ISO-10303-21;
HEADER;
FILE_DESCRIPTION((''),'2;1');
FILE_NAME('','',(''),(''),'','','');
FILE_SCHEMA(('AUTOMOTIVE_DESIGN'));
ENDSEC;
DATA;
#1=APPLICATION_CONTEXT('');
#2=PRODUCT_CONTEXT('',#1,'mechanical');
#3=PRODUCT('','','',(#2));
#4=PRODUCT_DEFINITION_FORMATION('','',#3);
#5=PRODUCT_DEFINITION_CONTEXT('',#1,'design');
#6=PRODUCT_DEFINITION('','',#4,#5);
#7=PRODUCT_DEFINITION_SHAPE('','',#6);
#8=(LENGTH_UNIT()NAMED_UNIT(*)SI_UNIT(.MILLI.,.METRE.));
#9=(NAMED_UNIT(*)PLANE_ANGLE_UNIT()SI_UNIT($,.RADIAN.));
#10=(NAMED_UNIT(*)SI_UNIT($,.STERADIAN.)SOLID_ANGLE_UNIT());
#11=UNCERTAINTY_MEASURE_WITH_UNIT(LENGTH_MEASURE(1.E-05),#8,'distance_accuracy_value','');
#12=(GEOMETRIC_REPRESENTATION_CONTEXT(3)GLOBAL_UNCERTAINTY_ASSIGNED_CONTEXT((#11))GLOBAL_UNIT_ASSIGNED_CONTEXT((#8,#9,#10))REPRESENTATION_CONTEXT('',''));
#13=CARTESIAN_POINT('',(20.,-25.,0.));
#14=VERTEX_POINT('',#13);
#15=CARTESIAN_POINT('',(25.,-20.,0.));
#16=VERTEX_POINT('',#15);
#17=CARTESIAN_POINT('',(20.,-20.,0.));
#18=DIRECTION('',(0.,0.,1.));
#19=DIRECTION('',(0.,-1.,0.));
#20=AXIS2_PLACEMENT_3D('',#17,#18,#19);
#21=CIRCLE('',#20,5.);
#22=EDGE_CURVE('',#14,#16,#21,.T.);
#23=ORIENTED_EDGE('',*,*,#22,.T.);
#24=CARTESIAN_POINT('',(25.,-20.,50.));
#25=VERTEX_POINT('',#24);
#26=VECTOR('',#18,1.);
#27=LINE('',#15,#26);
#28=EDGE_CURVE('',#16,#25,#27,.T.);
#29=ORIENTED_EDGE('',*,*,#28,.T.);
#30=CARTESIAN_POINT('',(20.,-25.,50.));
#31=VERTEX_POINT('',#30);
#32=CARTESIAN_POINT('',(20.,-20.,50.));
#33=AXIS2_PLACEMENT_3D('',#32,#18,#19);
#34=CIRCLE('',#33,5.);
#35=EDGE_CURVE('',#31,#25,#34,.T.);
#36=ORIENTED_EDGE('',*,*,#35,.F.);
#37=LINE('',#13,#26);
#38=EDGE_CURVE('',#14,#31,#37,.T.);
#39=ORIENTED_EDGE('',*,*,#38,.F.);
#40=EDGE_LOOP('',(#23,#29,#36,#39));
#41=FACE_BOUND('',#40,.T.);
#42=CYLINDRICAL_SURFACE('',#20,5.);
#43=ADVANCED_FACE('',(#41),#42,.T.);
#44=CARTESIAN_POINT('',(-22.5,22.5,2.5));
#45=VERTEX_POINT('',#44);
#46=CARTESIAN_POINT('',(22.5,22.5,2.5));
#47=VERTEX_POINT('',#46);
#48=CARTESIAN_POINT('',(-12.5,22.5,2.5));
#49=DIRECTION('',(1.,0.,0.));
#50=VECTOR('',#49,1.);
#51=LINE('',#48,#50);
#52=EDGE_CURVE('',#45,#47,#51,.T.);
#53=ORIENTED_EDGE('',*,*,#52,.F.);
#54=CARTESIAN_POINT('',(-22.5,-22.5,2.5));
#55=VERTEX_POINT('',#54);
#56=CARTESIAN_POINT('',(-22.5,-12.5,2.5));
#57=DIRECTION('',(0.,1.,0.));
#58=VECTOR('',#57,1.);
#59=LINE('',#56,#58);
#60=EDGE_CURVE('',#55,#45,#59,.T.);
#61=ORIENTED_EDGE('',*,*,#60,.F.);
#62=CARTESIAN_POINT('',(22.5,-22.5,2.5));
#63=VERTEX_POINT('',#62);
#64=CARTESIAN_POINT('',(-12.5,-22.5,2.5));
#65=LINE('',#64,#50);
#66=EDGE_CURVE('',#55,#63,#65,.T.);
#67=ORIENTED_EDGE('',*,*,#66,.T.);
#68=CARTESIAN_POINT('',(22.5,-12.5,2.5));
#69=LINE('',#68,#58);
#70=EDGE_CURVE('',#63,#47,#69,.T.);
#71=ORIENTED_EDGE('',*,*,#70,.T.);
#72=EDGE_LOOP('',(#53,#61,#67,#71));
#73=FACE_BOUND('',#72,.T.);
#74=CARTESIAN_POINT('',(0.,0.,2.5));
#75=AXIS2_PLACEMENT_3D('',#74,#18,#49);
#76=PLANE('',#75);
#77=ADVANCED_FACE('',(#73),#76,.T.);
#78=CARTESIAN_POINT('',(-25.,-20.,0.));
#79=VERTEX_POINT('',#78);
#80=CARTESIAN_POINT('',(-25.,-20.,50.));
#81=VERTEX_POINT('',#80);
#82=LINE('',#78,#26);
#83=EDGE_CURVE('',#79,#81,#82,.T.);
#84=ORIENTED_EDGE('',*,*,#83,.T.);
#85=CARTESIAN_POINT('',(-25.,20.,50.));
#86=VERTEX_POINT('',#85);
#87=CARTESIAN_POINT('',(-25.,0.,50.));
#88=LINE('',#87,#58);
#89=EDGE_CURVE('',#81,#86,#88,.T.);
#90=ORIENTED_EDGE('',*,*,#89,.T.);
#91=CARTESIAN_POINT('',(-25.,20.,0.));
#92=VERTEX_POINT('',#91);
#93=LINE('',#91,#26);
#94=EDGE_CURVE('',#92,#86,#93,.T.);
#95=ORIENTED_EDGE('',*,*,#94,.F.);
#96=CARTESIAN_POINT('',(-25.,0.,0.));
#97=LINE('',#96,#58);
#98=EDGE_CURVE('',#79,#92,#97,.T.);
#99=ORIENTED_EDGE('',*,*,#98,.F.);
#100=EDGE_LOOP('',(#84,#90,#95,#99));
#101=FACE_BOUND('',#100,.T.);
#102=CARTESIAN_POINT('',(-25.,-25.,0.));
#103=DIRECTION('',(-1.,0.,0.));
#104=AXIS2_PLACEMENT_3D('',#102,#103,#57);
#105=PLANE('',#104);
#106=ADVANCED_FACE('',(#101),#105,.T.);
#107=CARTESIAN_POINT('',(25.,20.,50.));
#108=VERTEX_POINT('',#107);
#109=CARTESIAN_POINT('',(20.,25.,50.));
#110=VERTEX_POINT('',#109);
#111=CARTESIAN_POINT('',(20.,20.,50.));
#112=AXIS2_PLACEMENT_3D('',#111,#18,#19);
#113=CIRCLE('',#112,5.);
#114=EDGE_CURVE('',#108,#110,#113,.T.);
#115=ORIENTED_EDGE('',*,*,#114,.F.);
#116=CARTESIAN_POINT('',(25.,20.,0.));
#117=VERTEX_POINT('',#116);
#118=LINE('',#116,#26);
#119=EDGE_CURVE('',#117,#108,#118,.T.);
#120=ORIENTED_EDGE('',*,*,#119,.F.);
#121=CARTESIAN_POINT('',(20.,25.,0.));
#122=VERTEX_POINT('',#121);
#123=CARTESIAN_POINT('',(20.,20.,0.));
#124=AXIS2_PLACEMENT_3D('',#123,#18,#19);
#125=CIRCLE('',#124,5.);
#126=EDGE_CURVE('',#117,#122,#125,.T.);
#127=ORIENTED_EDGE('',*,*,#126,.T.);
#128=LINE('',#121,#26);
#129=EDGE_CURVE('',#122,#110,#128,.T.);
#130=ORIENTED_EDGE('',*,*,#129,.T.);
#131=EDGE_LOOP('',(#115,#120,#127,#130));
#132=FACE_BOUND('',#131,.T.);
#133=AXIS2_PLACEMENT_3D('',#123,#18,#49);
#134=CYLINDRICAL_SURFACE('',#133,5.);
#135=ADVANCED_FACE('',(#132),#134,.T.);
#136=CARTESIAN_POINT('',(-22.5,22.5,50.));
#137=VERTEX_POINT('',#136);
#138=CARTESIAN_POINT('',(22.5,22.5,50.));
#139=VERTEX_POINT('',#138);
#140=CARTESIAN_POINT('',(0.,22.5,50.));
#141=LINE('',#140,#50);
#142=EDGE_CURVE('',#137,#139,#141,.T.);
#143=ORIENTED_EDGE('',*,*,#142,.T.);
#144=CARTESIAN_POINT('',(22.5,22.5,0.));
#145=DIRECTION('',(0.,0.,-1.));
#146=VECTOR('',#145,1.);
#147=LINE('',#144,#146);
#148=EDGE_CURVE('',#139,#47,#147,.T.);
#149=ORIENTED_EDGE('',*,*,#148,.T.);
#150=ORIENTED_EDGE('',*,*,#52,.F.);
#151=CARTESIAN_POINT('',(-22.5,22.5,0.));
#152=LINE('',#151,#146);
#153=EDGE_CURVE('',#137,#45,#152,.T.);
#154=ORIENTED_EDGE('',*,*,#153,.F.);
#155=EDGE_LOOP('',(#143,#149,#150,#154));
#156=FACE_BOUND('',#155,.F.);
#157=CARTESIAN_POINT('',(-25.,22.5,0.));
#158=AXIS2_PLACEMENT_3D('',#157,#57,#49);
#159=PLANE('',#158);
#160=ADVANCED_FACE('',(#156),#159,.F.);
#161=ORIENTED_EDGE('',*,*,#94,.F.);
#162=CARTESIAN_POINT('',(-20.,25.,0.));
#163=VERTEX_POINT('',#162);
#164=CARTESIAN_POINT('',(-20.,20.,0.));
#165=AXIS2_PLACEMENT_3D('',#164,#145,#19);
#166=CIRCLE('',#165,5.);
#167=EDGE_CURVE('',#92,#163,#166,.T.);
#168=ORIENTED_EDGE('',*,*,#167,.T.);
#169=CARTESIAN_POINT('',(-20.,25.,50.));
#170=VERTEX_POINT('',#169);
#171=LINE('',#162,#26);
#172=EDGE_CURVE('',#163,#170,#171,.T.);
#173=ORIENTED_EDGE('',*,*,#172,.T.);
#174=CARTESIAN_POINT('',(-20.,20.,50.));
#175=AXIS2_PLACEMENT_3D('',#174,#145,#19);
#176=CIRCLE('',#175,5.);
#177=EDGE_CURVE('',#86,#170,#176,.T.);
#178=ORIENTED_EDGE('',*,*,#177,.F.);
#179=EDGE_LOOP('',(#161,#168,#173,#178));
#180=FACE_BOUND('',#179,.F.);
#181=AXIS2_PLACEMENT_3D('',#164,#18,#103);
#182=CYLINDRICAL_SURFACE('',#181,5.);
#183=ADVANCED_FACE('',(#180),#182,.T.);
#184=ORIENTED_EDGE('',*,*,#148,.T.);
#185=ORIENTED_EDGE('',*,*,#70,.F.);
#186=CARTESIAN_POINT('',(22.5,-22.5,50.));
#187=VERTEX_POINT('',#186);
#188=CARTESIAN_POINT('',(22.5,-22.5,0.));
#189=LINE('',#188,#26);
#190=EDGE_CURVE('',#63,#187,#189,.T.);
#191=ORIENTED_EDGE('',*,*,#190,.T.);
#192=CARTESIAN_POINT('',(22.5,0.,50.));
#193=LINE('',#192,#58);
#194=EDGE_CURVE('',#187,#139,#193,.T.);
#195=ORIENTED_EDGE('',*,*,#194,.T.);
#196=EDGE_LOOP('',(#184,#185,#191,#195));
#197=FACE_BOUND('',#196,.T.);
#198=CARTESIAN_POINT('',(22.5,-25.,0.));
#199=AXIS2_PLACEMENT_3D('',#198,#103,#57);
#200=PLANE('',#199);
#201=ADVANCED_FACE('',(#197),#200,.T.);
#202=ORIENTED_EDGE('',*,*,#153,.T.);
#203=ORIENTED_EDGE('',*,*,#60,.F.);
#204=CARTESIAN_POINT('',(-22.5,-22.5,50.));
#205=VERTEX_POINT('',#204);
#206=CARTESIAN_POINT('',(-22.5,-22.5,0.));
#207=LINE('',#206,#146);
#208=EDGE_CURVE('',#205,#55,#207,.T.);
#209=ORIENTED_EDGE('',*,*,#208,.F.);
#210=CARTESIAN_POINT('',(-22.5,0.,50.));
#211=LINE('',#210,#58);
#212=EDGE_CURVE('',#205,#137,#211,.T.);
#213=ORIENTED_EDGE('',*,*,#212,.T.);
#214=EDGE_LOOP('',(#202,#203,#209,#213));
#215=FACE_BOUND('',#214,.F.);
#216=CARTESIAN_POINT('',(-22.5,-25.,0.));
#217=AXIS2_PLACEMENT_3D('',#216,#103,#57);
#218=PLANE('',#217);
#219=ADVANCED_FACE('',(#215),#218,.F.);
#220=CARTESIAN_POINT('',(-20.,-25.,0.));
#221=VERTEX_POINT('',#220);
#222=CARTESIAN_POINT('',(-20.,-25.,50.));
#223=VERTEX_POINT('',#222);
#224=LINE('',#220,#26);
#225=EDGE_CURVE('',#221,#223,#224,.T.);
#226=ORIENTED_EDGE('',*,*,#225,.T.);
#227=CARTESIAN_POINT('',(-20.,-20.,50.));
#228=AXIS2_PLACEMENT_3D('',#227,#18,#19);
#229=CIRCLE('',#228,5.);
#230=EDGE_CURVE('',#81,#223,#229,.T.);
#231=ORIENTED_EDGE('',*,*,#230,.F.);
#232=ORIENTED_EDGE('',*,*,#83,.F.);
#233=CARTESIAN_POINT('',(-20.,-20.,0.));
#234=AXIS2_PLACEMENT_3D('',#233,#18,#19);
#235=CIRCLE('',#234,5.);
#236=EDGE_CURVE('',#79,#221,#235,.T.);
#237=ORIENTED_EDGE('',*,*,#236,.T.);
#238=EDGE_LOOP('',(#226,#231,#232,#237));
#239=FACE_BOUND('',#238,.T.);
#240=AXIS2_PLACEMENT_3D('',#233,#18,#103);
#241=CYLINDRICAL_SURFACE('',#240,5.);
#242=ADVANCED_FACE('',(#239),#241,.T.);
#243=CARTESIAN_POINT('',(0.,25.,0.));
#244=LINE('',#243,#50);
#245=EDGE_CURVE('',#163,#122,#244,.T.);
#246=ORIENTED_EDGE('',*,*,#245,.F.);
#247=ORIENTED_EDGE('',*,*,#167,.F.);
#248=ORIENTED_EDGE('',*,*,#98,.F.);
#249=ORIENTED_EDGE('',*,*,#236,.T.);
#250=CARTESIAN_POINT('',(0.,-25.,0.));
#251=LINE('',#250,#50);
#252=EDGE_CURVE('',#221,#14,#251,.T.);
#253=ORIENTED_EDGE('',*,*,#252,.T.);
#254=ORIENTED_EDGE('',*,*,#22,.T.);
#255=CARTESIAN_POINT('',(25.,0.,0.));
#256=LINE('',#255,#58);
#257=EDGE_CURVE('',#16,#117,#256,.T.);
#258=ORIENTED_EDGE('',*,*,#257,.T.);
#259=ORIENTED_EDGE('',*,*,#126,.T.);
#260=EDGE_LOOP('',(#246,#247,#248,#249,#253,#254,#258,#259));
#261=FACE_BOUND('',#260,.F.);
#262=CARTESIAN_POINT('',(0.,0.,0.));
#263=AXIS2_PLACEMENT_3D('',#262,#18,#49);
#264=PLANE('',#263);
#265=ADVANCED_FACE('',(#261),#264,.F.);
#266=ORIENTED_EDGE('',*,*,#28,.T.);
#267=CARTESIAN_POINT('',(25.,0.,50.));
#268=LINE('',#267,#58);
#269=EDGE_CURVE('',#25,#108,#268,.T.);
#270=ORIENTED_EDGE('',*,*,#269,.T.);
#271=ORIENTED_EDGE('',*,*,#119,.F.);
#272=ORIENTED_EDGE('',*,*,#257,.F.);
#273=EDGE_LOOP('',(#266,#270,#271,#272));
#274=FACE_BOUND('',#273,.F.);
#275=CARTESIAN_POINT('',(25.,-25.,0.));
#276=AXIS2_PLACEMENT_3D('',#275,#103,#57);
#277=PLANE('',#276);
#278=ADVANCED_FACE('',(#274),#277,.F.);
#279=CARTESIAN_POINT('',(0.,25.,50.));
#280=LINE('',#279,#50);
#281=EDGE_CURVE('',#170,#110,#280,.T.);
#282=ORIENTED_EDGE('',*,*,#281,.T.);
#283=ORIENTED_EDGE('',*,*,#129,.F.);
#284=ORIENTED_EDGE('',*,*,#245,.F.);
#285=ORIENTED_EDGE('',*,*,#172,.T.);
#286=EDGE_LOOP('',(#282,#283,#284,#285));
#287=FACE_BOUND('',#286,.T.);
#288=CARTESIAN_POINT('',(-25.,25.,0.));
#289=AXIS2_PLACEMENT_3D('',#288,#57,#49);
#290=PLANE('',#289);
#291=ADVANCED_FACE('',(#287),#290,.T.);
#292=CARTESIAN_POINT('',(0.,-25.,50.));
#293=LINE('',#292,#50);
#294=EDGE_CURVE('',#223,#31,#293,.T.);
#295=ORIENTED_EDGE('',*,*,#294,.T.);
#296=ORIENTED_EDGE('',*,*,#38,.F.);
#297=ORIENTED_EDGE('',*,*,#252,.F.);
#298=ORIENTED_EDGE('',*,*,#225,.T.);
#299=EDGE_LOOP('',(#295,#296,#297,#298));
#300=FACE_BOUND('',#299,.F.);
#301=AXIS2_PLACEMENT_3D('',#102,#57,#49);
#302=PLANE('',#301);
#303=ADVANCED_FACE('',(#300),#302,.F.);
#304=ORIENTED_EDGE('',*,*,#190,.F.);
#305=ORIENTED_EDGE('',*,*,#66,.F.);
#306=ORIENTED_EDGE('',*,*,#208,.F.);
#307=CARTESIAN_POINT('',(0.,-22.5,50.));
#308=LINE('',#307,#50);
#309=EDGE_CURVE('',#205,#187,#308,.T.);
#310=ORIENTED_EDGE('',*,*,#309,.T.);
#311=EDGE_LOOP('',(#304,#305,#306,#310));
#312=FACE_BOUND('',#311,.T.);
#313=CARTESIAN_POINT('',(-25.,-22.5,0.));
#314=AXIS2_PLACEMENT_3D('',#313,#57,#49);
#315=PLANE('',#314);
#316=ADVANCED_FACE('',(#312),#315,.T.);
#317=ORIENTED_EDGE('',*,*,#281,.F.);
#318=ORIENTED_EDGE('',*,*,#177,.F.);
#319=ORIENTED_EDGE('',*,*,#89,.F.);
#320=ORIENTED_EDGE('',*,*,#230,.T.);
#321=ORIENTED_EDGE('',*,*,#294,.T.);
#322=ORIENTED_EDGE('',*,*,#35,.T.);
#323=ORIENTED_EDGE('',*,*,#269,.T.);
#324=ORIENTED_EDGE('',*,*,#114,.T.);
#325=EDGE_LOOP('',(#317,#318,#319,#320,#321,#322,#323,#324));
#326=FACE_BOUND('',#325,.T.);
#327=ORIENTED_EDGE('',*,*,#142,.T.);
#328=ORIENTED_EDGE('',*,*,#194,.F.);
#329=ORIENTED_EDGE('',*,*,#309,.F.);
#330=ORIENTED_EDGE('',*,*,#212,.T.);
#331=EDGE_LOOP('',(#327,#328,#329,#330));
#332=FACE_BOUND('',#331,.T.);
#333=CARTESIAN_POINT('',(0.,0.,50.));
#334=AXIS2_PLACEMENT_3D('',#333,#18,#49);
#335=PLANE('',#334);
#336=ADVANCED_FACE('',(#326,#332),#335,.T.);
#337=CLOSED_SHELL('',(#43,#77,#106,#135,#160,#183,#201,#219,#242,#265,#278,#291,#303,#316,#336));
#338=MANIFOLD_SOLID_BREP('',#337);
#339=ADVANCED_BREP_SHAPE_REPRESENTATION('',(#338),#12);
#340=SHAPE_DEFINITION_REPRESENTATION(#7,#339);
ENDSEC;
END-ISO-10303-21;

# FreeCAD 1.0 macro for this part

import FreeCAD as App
import Part
import Sketcher

V = App.Vector


def edges_at(feature, points):
    """Names of the edges that pass closest to the given points."""
    edges = feature.Shape.Edges
    near = lambda p: min(range(len(edges)), key=lambda i: edges[i].distToShape(Part.Vertex(*p))[0])
    return sorted({f"Edge{near(p) + 1}" for p in points})


def faces_at(feature, points):
    """Names of the faces that lie closest to the given points."""
    faces = feature.Shape.Faces
    near = lambda p: min(range(len(faces)), key=lambda i: faces[i].distToShape(Part.Vertex(*p))[0])
    return sorted({f"Face{near(p) + 1}" for p in points})


def add_polygon(sketch, points):
    """Adds a closed chain of lines whose ends are joined by coincident constraints."""
    first, n = sketch.GeometryCount, len(points)
    for a, b in zip(points, points[1:] + points[:1]):
        sketch.addGeometry(Part.LineSegment(App.Vector(*a, 0), App.Vector(*b, 0)), False)
    for i in range(n):
        sketch.addConstraint(Sketcher.Constraint("Coincident", first + i, 2, first + (i + 1) % n, 1))

doc = App.newDocument("Part")
params = doc.addObject("Spreadsheet::Sheet", "Params")
for row, (alias, value) in enumerate([
    ("sketch1_width", "50 mm"),
    ("pad1_length", "50 mm"),
    ("thickness_wall", "2.5 mm"),
    ("fillet_radius", "5 mm"),
], start=1):
    params.set(f"A{row}", alias)
    params.set(f"B{row}", "=" + value)
    params.setAlias(f"B{row}", alias)

body = doc.addObject("PartDesign::Body", "Body")

# Sketch on XY plane
sketch1 = body.newObject("Sketcher::SketchObject", "Sketch")
sketch1.AttachmentSupport = (doc.getObject("XY_Plane"), [""])
sketch1.MapMode = "FlatFace"
add_polygon(sketch1, [(-25, 25), (-25, -25), (25, -25), (25, 25)])  # lines 0-3
sketch1.addConstraint([
    Sketcher.Constraint("Vertical", 0),
    Sketcher.Constraint("Horizontal", 1),
    Sketcher.Constraint("Vertical", 2),
    Sketcher.Constraint("Horizontal", 3),
    Sketcher.Constraint("Symmetric", 0, 2, 2, 2, -1, 1),
    Sketcher.Constraint("Equal", 3, 0),
    Sketcher.Constraint("DistanceX", 1, 1, 1, 2, 50.0),
])
sketch1.setExpression("Constraints[10]", "Params.sketch1_width")
pad1 = body.newObject("PartDesign::Pad", "Pad")
pad1.Profile = sketch1
pad1.setExpression("Length", "Params.pad1_length")
doc.recompute()

thickness = body.newObject("PartDesign::Thickness", "Thickness")
thickness.Base = (pad1, faces_at(pad1, [(0, 0, 50)]))
thickness.setExpression("Value", "Params.thickness_wall")
thickness.Reversed = True
thickness.Join = "Arc"
doc.recompute()

fillet = body.newObject("PartDesign::Fillet", "Fillet")
fillet.Base = (thickness, edges_at(thickness, [
    (-25, -25, 25),
    (25, -25, 25),
    (25, 25, 25),
    (-25, 25, 25),
]))
fillet.setExpression("Radius", "Params.fillet_radius")

doc.recompute()
